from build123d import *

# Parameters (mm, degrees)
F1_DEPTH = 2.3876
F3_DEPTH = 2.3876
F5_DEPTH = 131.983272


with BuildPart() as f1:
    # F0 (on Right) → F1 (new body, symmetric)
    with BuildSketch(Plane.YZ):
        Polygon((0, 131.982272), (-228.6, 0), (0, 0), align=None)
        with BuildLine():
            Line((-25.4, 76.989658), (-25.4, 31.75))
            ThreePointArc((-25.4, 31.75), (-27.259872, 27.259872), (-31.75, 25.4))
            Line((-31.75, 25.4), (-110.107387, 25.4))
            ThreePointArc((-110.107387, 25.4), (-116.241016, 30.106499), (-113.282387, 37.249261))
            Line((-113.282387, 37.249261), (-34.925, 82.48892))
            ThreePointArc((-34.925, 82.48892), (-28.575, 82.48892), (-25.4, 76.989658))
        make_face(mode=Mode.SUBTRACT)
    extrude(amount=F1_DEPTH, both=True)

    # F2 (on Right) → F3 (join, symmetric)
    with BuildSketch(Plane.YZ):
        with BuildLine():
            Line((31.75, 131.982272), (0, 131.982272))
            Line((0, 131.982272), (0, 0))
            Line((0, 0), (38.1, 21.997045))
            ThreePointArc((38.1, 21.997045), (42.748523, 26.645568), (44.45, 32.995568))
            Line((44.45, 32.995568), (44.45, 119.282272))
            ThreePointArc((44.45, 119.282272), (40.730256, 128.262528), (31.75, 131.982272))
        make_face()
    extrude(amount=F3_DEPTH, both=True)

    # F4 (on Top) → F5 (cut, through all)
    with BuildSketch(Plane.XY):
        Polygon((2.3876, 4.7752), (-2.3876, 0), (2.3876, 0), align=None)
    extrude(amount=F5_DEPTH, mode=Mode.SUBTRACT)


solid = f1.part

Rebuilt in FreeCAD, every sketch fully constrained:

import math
import FreeCAD as App
import Part
import Sketcher
Q = App.Units.Quantity


def add_polygon(sketch, points):
    """Adds a closed chain of lines whose ends are joined by coincident constraints."""
    first, n = sketch.GeometryCount, len(points)
    for a, b in zip(points, points[1:] + points[:1]):
        sketch.addGeometry(Part.LineSegment(App.Vector(*a, 0), App.Vector(*b, 0)), False)
    for i in range(n):
        sketch.addConstraint(Sketcher.Constraint("Coincident", first + i, 2, first + (i + 1) % n, 1))

doc = App.newDocument("Part")
body = doc.addObject("PartDesign::Body", "Body")
body.AllowCompound = True

sketch1 = doc.addObject("Sketcher::SketchObject", "Sketch")
body.addObject(sketch1)
sketch1.AttachmentSupport = (doc.YZ_Plane, [""])
sketch1.MapMode = "FlatFace"
add_polygon(sketch1, [(0, 132), (-229, 0), (0, 0)])
sketch1.addGeometry(Part.ArcOfCircle(Part.Circle(App.Vector(-32, 77, 0), App.Vector(0, 0, 1), 6), math.radians(0), math.radians(120)), False)
sketch1.addGeometry(Part.LineSegment(App.Vector(-25, 77, 0), App.Vector(-25, 32, 0)), False)
sketch1.addGeometry(Part.ArcOfCircle(Part.Circle(App.Vector(-32, 32, 0), App.Vector(0, 0, 1), 6), math.radians(-90), math.radians(0)), False)
sketch1.addGeometry(Part.LineSegment(App.Vector(-32, 25, 0), App.Vector(-110, 25, 0)), False)
sketch1.addGeometry(Part.ArcOfCircle(Part.Circle(App.Vector(-110, 32, 0), App.Vector(0, 0, 1), 6), math.radians(120), math.radians(270)), False)
sketch1.addGeometry(Part.LineSegment(App.Vector(-113, 37, 0), App.Vector(-35, 82, 0)), False)
sketch1.addConstraint(Sketcher.Constraint("Tangent", 3, 1, 4, 1))
sketch1.addConstraint(Sketcher.Constraint("Tangent", 4, 2, 5, 2))
sketch1.addConstraint(Sketcher.Constraint("Tangent", 5, 1, 6, 1))
sketch1.addConstraint(Sketcher.Constraint("Tangent", 6, 2, 7, 2))
sketch1.addConstraint(Sketcher.Constraint("Tangent", 7, 1, 8, 1))
sketch1.addConstraint(Sketcher.Constraint("Tangent", 8, 2, 3, 2))
sketch1.addConstraint(Sketcher.Constraint("Horizontal", 1))
sketch1.addConstraint(Sketcher.Constraint("Vertical", 2))
sketch1.addConstraint(Sketcher.Constraint("Vertical", 4))
sketch1.addConstraint(Sketcher.Constraint("Horizontal", 6))
sketch1.addConstraint(Sketcher.Constraint("Coincident", 1, 2, -1, 1))
sketch1.addConstraint(Sketcher.Constraint("Equal", 3, 5))
sketch1.addConstraint(Sketcher.Constraint("Equal", 5, 7))
sketch1.addConstraint(Sketcher.Constraint("Parallel", 0, 8))
sketch1.addConstraint(Sketcher.Constraint("DistanceX", 1, 1, 1, 2, Q("9 in")))
sketch1.addConstraint(Sketcher.Constraint("Radius", 3, Q("0.25 in")))
sketch1.addConstraint(Sketcher.Constraint("DistanceX", 3, 1, -1, 1, Q("1 in")))
sketch1.addConstraint(Sketcher.Constraint("DistanceY", -1, 1, 5, 1, Q("1 in")))
sketch1.addConstraint(Sketcher.Constraint("Angle", 0, Q("-150 deg")))
sketch1.addConstraint(Sketcher.Constraint("DistanceY", 4, 2, 4, 1, Q("45.239658 mm")))
pad1 = doc.addObject("PartDesign::Pad", "Pad")
body.addObject(pad1)
pad1.Profile = sketch1
pad1.Length = Q("0.188 in")
pad1.Midplane = True

sketch2 = doc.addObject("Sketcher::SketchObject", "Sketch001")
body.addObject(sketch2)
sketch2.AttachmentSupport = (doc.YZ_Plane, [""])
sketch2.MapMode = "FlatFace"
sketch2.addGeometry(Part.LineSegment(App.Vector(32, 132, 0), App.Vector(0, 132, 0)), False)
sketch2.addGeometry(Part.LineSegment(App.Vector(0, 132, 0), App.Vector(0, 0, 0)), False)
sketch2.addGeometry(Part.LineSegment(App.Vector(0, 0, 0), App.Vector(38, 22, 0)), False)
sketch2.addGeometry(Part.ArcOfCircle(Part.Circle(App.Vector(32, 33, 0), App.Vector(0, 0, 1), 13), math.radians(-60), math.radians(0)), False)
sketch2.addGeometry(Part.LineSegment(App.Vector(44, 33, 0), App.Vector(44, 119, 0)), False)
sketch2.addGeometry(Part.ArcOfCircle(Part.Circle(App.Vector(32, 119, 0), App.Vector(0, 0, 1), 13), math.radians(0), math.radians(90)), False)
sketch2.addConstraint(Sketcher.Constraint("Coincident", 0, 2, 1, 1))
sketch2.addConstraint(Sketcher.Constraint("Coincident", 1, 2, 2, 1))
sketch2.addConstraint(Sketcher.Constraint("Tangent", 2, 2, 3, 1))
sketch2.addConstraint(Sketcher.Constraint("Tangent", 3, 2, 4, 1))
sketch2.addConstraint(Sketcher.Constraint("Tangent", 4, 2, 5, 1))
sketch2.addConstraint(Sketcher.Constraint("Tangent", 5, 2, 0, 1))
sketch2.addConstraint(Sketcher.Constraint("Horizontal", 0))
sketch2.addConstraint(Sketcher.Constraint("Vertical", 1))
sketch2.addConstraint(Sketcher.Constraint("Vertical", 4))
sketch2.addConstraint(Sketcher.Constraint("Coincident", 1, 2, -1, 1))
sketch2.addConstraint(Sketcher.Constraint("Equal", 3, 5))
sketch2.addConstraint(Sketcher.Constraint("Radius", 3, Q("0.5 in")))
sketch2.addConstraint(Sketcher.Constraint("Angle", 2, Q("30 deg")))
sketch2.addConstraint(Sketcher.Constraint("DistanceX", 0, 2, 0, 1, Q("1.25 in")))
sketch2.addConstraint(Sketcher.Constraint("DistanceY", 1, 2, 1, 1, Q("131.982272 mm")))
pad2 = doc.addObject("PartDesign::Pad", "Pad001")
body.addObject(pad2)
pad2.Profile = sketch2
pad2.Length = Q("0.188 in")
pad2.Midplane = True

sketch3 = doc.addObject("Sketcher::SketchObject", "Sketch002")
body.addObject(sketch3)
sketch3.AttachmentSupport = (doc.XY_Plane, [""])
sketch3.MapMode = "FlatFace"
add_polygon(sketch3, [(2.4, 4.8), (-2.4, 0), (2.4, 0)])
sketch3.addConstraint(Sketcher.Constraint("Horizontal", 1))
sketch3.addConstraint(Sketcher.Constraint("Vertical", 2))
sketch3.addConstraint(Sketcher.Constraint("Symmetric", 0, 2, 1, 2, -1, 1))
sketch3.addConstraint(Sketcher.Constraint("Equal", 1, 2))
sketch3.addConstraint(Sketcher.Constraint("DistanceX", 1, 1, 1, 2, Q("0.188 in")))
pocket1 = doc.addObject("PartDesign::Pocket", "Pocket")
body.addObject(pocket1)
pocket1.Profile = sketch3
pocket1.Type = "ThroughAll"
pocket1.Reversed = True

doc.recompute()
